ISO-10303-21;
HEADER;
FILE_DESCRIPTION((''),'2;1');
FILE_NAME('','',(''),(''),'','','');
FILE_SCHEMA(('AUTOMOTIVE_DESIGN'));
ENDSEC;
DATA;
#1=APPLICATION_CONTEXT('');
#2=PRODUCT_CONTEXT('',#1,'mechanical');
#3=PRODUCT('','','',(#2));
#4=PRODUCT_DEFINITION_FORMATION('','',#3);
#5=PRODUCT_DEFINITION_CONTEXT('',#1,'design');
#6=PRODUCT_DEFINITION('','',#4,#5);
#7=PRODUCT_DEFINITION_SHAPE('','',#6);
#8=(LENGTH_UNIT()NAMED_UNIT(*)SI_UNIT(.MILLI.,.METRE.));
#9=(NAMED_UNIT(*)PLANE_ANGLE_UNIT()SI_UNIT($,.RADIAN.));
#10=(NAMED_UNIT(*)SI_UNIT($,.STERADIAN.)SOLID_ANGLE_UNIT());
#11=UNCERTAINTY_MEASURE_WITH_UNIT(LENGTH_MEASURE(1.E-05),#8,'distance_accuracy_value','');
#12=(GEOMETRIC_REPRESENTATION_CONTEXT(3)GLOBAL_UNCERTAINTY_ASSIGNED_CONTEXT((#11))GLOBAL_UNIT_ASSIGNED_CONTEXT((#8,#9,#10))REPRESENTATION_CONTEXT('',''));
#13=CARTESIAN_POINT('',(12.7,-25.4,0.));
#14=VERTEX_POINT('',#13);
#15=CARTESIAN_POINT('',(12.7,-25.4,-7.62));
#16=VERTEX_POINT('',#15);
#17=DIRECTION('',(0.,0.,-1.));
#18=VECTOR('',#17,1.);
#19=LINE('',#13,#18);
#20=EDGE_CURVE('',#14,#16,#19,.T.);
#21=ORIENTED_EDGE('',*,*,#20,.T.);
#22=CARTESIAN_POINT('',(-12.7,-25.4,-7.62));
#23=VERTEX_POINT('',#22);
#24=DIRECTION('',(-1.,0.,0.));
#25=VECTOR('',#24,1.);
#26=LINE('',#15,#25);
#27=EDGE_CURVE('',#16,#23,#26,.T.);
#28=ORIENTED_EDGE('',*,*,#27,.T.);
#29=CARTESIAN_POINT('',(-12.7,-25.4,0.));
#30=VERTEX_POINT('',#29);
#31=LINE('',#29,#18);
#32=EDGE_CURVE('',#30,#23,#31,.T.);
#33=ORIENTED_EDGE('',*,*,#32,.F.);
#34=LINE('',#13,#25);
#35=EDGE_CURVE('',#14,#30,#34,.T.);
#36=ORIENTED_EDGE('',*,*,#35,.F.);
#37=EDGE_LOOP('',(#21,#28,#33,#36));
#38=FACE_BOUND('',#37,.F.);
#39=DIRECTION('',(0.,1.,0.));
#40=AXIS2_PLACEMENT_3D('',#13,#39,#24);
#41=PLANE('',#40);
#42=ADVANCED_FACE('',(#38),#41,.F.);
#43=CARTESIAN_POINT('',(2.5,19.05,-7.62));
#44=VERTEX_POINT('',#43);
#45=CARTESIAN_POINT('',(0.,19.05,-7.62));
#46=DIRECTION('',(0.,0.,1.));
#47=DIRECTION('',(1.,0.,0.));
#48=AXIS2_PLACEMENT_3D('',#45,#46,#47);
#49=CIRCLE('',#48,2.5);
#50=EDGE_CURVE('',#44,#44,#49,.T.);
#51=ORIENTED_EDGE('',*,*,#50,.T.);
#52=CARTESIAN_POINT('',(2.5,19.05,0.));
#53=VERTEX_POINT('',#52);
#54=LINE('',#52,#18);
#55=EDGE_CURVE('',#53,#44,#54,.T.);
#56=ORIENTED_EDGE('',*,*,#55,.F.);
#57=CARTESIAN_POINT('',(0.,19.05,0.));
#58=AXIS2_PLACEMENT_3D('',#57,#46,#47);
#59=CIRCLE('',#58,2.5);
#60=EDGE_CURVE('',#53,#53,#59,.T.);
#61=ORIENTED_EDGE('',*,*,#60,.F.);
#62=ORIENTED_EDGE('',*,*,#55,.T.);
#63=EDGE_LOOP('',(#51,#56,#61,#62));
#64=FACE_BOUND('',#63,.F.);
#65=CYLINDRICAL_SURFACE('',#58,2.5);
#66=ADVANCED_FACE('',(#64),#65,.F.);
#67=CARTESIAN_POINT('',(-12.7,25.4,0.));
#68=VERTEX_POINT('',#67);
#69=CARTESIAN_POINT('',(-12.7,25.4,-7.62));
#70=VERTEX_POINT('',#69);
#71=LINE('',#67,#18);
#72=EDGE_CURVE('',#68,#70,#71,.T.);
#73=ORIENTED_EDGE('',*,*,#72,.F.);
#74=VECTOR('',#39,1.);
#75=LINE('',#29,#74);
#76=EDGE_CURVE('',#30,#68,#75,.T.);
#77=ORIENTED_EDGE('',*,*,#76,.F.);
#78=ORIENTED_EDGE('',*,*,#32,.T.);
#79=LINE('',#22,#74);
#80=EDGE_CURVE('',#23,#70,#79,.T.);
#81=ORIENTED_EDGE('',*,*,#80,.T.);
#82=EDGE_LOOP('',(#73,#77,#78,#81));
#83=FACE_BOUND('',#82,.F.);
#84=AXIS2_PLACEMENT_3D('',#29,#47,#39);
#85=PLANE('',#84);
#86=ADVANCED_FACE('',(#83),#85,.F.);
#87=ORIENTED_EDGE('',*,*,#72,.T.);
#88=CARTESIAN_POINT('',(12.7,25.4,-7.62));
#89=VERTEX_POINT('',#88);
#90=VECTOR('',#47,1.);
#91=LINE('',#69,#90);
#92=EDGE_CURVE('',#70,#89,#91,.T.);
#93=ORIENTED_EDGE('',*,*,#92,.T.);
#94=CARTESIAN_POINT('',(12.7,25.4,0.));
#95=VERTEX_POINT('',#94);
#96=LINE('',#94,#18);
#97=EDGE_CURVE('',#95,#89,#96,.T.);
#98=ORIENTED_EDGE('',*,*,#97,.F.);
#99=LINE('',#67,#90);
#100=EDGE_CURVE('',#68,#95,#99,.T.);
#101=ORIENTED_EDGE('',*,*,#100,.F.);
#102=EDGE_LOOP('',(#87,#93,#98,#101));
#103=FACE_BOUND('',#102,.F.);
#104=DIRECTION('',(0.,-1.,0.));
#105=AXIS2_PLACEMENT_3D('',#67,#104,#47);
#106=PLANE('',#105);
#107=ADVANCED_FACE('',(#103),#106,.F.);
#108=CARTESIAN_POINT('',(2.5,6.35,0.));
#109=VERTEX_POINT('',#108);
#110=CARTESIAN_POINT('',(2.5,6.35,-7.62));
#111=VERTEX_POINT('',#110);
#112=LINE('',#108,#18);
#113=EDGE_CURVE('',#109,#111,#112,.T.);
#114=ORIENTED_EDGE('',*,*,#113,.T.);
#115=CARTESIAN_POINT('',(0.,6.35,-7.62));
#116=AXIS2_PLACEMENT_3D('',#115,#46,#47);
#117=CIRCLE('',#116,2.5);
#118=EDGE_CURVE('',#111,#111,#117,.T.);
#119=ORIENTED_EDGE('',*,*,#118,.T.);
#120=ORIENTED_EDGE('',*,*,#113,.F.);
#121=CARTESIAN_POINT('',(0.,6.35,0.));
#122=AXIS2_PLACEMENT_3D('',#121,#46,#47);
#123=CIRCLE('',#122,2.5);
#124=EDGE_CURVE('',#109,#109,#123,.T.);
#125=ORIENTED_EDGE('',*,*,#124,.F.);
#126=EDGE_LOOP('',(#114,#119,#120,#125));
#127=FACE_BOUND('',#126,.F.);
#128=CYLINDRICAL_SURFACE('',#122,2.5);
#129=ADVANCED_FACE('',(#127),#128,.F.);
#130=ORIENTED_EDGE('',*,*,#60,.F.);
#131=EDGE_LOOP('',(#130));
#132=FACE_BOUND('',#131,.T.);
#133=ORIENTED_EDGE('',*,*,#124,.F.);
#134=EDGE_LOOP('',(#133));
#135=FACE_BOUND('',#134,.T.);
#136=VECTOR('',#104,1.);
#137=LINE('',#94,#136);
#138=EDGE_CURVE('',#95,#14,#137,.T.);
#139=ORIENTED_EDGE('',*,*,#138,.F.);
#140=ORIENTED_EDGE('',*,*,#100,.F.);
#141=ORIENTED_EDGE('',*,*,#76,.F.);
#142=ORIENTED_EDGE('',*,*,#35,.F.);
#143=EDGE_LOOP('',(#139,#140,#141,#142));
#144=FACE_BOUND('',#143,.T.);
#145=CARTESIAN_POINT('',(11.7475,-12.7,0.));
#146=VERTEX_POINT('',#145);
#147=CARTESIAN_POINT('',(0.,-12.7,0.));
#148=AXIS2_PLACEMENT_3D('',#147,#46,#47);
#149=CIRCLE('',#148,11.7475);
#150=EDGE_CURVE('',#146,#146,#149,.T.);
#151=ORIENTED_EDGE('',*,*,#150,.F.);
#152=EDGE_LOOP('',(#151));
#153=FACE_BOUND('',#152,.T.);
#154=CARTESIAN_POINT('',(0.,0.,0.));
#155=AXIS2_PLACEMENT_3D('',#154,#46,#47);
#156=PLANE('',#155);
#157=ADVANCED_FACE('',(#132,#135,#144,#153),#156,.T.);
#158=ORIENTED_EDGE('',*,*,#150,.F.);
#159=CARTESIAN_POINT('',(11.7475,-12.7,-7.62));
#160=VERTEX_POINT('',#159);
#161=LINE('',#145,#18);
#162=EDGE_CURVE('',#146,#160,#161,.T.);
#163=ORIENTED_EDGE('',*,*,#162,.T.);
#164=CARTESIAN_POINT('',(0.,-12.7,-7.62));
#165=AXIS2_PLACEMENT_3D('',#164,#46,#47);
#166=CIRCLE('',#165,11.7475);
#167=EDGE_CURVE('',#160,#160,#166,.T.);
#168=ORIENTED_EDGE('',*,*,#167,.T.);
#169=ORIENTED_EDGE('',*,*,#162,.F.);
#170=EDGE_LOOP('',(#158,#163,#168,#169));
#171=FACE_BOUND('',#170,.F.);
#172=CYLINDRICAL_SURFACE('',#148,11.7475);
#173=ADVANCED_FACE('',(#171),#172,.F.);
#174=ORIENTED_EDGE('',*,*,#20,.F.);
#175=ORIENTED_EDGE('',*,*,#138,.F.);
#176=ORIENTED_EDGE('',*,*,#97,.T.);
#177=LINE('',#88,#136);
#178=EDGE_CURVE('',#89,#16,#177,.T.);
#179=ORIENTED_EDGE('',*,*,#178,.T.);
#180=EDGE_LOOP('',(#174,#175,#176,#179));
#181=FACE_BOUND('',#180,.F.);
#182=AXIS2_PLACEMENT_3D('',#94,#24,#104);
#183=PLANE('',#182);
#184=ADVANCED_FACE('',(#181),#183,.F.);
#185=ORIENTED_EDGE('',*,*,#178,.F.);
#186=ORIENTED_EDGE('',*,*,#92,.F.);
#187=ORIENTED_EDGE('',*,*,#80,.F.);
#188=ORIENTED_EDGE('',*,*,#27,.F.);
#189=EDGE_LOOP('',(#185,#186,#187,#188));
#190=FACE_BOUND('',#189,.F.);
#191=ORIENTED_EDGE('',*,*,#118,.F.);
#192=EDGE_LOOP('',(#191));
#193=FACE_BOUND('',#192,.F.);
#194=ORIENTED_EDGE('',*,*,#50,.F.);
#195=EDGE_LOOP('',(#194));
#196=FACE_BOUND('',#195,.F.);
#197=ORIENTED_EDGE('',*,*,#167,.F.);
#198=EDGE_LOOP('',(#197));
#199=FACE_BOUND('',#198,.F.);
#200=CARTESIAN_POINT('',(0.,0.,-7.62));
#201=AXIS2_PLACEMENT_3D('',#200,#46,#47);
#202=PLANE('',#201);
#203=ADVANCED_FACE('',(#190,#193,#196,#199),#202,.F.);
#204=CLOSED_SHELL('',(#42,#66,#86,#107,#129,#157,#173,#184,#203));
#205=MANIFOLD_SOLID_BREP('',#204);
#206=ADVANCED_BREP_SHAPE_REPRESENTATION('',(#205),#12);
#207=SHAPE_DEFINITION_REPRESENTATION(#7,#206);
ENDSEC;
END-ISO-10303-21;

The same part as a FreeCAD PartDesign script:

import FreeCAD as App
import Part
import Sketcher
Q = App.Units.Quantity


def add_polygon(sketch, points):
    """Adds a closed chain of lines whose ends are joined by coincident constraints."""
    first, n = sketch.GeometryCount, len(points)
    for a, b in zip(points, points[1:] + points[:1]):
        sketch.addGeometry(Part.LineSegment(App.Vector(*a, 0), App.Vector(*b, 0)), False)
    for i in range(n):
        sketch.addConstraint(Sketcher.Constraint("Coincident", first + i, 2, first + (i + 1) % n, 1))

doc = App.newDocument("Part")
body = doc.addObject("PartDesign::Body", "Body")

sketch1 = body.newObject("Sketcher::SketchObject", "Sketch")
sketch1.AttachmentSupport = (doc.getObject("XY_Plane"), [""])
sketch1.MapMode = "FlatFace"
add_polygon(sketch1, [(-12.7, -25.4), (12.7, -25.4), (12.7, 25.4), (-12.7, 25.4)])
sketch1.addGeometry(Part.Circle(App.Vector(0, -12.7, 0), App.Vector(0, 0, 1), 11.7475), False)
sketch1.addGeometry(Part.Circle(App.Vector(0, 6.35, 0), App.Vector(0, 0, 1), 2.5), False)
sketch1.addGeometry(Part.Circle(App.Vector(0, 19.05, 0), App.Vector(0, 0, 1), 2.5), False)
sketch1.addConstraint([
    Sketcher.Constraint("Horizontal", 0),
    Sketcher.Constraint("Vertical", 1),
    Sketcher.Constraint("Horizontal", 2),
    Sketcher.Constraint("Vertical", 3),
    Sketcher.Constraint("Equal", 5, 6),
    Sketcher.Constraint("Symmetric", 0, 2, 2, 2, -1, 1),
    Sketcher.Constraint("PointOnObject", 4, 3, -2),
    Sketcher.Constraint("PointOnObject", 5, 3, -2),
    Sketcher.Constraint("PointOnObject", 6, 3, -2),
    Sketcher.Constraint("DistanceX", 0, 1, 0, 2, Q("1 in")),
    Sketcher.Constraint("DistanceY", 1, 1, 1, 2, Q("2 in")),
    Sketcher.Constraint("Diameter", 4, Q("0.925 in")),
    Sketcher.Constraint("DistanceY", 4, 3, -1, 1, Q("0.5 in")),
    Sketcher.Constraint("DistanceY", 5, 3, 6, 3, Q("0.5 in")),
    Sketcher.Constraint("Diameter", 5, 5.0),
    Sketcher.Constraint("DistanceY", -1, 1, 5, 3, Q("0.25 in")),
])
pad1 = body.newObject("PartDesign::Pad", "Pad")
pad1.Profile = sketch1
pad1.Length = Q("0.3 in")
pad1.Reversed = True

doc.recompute()
